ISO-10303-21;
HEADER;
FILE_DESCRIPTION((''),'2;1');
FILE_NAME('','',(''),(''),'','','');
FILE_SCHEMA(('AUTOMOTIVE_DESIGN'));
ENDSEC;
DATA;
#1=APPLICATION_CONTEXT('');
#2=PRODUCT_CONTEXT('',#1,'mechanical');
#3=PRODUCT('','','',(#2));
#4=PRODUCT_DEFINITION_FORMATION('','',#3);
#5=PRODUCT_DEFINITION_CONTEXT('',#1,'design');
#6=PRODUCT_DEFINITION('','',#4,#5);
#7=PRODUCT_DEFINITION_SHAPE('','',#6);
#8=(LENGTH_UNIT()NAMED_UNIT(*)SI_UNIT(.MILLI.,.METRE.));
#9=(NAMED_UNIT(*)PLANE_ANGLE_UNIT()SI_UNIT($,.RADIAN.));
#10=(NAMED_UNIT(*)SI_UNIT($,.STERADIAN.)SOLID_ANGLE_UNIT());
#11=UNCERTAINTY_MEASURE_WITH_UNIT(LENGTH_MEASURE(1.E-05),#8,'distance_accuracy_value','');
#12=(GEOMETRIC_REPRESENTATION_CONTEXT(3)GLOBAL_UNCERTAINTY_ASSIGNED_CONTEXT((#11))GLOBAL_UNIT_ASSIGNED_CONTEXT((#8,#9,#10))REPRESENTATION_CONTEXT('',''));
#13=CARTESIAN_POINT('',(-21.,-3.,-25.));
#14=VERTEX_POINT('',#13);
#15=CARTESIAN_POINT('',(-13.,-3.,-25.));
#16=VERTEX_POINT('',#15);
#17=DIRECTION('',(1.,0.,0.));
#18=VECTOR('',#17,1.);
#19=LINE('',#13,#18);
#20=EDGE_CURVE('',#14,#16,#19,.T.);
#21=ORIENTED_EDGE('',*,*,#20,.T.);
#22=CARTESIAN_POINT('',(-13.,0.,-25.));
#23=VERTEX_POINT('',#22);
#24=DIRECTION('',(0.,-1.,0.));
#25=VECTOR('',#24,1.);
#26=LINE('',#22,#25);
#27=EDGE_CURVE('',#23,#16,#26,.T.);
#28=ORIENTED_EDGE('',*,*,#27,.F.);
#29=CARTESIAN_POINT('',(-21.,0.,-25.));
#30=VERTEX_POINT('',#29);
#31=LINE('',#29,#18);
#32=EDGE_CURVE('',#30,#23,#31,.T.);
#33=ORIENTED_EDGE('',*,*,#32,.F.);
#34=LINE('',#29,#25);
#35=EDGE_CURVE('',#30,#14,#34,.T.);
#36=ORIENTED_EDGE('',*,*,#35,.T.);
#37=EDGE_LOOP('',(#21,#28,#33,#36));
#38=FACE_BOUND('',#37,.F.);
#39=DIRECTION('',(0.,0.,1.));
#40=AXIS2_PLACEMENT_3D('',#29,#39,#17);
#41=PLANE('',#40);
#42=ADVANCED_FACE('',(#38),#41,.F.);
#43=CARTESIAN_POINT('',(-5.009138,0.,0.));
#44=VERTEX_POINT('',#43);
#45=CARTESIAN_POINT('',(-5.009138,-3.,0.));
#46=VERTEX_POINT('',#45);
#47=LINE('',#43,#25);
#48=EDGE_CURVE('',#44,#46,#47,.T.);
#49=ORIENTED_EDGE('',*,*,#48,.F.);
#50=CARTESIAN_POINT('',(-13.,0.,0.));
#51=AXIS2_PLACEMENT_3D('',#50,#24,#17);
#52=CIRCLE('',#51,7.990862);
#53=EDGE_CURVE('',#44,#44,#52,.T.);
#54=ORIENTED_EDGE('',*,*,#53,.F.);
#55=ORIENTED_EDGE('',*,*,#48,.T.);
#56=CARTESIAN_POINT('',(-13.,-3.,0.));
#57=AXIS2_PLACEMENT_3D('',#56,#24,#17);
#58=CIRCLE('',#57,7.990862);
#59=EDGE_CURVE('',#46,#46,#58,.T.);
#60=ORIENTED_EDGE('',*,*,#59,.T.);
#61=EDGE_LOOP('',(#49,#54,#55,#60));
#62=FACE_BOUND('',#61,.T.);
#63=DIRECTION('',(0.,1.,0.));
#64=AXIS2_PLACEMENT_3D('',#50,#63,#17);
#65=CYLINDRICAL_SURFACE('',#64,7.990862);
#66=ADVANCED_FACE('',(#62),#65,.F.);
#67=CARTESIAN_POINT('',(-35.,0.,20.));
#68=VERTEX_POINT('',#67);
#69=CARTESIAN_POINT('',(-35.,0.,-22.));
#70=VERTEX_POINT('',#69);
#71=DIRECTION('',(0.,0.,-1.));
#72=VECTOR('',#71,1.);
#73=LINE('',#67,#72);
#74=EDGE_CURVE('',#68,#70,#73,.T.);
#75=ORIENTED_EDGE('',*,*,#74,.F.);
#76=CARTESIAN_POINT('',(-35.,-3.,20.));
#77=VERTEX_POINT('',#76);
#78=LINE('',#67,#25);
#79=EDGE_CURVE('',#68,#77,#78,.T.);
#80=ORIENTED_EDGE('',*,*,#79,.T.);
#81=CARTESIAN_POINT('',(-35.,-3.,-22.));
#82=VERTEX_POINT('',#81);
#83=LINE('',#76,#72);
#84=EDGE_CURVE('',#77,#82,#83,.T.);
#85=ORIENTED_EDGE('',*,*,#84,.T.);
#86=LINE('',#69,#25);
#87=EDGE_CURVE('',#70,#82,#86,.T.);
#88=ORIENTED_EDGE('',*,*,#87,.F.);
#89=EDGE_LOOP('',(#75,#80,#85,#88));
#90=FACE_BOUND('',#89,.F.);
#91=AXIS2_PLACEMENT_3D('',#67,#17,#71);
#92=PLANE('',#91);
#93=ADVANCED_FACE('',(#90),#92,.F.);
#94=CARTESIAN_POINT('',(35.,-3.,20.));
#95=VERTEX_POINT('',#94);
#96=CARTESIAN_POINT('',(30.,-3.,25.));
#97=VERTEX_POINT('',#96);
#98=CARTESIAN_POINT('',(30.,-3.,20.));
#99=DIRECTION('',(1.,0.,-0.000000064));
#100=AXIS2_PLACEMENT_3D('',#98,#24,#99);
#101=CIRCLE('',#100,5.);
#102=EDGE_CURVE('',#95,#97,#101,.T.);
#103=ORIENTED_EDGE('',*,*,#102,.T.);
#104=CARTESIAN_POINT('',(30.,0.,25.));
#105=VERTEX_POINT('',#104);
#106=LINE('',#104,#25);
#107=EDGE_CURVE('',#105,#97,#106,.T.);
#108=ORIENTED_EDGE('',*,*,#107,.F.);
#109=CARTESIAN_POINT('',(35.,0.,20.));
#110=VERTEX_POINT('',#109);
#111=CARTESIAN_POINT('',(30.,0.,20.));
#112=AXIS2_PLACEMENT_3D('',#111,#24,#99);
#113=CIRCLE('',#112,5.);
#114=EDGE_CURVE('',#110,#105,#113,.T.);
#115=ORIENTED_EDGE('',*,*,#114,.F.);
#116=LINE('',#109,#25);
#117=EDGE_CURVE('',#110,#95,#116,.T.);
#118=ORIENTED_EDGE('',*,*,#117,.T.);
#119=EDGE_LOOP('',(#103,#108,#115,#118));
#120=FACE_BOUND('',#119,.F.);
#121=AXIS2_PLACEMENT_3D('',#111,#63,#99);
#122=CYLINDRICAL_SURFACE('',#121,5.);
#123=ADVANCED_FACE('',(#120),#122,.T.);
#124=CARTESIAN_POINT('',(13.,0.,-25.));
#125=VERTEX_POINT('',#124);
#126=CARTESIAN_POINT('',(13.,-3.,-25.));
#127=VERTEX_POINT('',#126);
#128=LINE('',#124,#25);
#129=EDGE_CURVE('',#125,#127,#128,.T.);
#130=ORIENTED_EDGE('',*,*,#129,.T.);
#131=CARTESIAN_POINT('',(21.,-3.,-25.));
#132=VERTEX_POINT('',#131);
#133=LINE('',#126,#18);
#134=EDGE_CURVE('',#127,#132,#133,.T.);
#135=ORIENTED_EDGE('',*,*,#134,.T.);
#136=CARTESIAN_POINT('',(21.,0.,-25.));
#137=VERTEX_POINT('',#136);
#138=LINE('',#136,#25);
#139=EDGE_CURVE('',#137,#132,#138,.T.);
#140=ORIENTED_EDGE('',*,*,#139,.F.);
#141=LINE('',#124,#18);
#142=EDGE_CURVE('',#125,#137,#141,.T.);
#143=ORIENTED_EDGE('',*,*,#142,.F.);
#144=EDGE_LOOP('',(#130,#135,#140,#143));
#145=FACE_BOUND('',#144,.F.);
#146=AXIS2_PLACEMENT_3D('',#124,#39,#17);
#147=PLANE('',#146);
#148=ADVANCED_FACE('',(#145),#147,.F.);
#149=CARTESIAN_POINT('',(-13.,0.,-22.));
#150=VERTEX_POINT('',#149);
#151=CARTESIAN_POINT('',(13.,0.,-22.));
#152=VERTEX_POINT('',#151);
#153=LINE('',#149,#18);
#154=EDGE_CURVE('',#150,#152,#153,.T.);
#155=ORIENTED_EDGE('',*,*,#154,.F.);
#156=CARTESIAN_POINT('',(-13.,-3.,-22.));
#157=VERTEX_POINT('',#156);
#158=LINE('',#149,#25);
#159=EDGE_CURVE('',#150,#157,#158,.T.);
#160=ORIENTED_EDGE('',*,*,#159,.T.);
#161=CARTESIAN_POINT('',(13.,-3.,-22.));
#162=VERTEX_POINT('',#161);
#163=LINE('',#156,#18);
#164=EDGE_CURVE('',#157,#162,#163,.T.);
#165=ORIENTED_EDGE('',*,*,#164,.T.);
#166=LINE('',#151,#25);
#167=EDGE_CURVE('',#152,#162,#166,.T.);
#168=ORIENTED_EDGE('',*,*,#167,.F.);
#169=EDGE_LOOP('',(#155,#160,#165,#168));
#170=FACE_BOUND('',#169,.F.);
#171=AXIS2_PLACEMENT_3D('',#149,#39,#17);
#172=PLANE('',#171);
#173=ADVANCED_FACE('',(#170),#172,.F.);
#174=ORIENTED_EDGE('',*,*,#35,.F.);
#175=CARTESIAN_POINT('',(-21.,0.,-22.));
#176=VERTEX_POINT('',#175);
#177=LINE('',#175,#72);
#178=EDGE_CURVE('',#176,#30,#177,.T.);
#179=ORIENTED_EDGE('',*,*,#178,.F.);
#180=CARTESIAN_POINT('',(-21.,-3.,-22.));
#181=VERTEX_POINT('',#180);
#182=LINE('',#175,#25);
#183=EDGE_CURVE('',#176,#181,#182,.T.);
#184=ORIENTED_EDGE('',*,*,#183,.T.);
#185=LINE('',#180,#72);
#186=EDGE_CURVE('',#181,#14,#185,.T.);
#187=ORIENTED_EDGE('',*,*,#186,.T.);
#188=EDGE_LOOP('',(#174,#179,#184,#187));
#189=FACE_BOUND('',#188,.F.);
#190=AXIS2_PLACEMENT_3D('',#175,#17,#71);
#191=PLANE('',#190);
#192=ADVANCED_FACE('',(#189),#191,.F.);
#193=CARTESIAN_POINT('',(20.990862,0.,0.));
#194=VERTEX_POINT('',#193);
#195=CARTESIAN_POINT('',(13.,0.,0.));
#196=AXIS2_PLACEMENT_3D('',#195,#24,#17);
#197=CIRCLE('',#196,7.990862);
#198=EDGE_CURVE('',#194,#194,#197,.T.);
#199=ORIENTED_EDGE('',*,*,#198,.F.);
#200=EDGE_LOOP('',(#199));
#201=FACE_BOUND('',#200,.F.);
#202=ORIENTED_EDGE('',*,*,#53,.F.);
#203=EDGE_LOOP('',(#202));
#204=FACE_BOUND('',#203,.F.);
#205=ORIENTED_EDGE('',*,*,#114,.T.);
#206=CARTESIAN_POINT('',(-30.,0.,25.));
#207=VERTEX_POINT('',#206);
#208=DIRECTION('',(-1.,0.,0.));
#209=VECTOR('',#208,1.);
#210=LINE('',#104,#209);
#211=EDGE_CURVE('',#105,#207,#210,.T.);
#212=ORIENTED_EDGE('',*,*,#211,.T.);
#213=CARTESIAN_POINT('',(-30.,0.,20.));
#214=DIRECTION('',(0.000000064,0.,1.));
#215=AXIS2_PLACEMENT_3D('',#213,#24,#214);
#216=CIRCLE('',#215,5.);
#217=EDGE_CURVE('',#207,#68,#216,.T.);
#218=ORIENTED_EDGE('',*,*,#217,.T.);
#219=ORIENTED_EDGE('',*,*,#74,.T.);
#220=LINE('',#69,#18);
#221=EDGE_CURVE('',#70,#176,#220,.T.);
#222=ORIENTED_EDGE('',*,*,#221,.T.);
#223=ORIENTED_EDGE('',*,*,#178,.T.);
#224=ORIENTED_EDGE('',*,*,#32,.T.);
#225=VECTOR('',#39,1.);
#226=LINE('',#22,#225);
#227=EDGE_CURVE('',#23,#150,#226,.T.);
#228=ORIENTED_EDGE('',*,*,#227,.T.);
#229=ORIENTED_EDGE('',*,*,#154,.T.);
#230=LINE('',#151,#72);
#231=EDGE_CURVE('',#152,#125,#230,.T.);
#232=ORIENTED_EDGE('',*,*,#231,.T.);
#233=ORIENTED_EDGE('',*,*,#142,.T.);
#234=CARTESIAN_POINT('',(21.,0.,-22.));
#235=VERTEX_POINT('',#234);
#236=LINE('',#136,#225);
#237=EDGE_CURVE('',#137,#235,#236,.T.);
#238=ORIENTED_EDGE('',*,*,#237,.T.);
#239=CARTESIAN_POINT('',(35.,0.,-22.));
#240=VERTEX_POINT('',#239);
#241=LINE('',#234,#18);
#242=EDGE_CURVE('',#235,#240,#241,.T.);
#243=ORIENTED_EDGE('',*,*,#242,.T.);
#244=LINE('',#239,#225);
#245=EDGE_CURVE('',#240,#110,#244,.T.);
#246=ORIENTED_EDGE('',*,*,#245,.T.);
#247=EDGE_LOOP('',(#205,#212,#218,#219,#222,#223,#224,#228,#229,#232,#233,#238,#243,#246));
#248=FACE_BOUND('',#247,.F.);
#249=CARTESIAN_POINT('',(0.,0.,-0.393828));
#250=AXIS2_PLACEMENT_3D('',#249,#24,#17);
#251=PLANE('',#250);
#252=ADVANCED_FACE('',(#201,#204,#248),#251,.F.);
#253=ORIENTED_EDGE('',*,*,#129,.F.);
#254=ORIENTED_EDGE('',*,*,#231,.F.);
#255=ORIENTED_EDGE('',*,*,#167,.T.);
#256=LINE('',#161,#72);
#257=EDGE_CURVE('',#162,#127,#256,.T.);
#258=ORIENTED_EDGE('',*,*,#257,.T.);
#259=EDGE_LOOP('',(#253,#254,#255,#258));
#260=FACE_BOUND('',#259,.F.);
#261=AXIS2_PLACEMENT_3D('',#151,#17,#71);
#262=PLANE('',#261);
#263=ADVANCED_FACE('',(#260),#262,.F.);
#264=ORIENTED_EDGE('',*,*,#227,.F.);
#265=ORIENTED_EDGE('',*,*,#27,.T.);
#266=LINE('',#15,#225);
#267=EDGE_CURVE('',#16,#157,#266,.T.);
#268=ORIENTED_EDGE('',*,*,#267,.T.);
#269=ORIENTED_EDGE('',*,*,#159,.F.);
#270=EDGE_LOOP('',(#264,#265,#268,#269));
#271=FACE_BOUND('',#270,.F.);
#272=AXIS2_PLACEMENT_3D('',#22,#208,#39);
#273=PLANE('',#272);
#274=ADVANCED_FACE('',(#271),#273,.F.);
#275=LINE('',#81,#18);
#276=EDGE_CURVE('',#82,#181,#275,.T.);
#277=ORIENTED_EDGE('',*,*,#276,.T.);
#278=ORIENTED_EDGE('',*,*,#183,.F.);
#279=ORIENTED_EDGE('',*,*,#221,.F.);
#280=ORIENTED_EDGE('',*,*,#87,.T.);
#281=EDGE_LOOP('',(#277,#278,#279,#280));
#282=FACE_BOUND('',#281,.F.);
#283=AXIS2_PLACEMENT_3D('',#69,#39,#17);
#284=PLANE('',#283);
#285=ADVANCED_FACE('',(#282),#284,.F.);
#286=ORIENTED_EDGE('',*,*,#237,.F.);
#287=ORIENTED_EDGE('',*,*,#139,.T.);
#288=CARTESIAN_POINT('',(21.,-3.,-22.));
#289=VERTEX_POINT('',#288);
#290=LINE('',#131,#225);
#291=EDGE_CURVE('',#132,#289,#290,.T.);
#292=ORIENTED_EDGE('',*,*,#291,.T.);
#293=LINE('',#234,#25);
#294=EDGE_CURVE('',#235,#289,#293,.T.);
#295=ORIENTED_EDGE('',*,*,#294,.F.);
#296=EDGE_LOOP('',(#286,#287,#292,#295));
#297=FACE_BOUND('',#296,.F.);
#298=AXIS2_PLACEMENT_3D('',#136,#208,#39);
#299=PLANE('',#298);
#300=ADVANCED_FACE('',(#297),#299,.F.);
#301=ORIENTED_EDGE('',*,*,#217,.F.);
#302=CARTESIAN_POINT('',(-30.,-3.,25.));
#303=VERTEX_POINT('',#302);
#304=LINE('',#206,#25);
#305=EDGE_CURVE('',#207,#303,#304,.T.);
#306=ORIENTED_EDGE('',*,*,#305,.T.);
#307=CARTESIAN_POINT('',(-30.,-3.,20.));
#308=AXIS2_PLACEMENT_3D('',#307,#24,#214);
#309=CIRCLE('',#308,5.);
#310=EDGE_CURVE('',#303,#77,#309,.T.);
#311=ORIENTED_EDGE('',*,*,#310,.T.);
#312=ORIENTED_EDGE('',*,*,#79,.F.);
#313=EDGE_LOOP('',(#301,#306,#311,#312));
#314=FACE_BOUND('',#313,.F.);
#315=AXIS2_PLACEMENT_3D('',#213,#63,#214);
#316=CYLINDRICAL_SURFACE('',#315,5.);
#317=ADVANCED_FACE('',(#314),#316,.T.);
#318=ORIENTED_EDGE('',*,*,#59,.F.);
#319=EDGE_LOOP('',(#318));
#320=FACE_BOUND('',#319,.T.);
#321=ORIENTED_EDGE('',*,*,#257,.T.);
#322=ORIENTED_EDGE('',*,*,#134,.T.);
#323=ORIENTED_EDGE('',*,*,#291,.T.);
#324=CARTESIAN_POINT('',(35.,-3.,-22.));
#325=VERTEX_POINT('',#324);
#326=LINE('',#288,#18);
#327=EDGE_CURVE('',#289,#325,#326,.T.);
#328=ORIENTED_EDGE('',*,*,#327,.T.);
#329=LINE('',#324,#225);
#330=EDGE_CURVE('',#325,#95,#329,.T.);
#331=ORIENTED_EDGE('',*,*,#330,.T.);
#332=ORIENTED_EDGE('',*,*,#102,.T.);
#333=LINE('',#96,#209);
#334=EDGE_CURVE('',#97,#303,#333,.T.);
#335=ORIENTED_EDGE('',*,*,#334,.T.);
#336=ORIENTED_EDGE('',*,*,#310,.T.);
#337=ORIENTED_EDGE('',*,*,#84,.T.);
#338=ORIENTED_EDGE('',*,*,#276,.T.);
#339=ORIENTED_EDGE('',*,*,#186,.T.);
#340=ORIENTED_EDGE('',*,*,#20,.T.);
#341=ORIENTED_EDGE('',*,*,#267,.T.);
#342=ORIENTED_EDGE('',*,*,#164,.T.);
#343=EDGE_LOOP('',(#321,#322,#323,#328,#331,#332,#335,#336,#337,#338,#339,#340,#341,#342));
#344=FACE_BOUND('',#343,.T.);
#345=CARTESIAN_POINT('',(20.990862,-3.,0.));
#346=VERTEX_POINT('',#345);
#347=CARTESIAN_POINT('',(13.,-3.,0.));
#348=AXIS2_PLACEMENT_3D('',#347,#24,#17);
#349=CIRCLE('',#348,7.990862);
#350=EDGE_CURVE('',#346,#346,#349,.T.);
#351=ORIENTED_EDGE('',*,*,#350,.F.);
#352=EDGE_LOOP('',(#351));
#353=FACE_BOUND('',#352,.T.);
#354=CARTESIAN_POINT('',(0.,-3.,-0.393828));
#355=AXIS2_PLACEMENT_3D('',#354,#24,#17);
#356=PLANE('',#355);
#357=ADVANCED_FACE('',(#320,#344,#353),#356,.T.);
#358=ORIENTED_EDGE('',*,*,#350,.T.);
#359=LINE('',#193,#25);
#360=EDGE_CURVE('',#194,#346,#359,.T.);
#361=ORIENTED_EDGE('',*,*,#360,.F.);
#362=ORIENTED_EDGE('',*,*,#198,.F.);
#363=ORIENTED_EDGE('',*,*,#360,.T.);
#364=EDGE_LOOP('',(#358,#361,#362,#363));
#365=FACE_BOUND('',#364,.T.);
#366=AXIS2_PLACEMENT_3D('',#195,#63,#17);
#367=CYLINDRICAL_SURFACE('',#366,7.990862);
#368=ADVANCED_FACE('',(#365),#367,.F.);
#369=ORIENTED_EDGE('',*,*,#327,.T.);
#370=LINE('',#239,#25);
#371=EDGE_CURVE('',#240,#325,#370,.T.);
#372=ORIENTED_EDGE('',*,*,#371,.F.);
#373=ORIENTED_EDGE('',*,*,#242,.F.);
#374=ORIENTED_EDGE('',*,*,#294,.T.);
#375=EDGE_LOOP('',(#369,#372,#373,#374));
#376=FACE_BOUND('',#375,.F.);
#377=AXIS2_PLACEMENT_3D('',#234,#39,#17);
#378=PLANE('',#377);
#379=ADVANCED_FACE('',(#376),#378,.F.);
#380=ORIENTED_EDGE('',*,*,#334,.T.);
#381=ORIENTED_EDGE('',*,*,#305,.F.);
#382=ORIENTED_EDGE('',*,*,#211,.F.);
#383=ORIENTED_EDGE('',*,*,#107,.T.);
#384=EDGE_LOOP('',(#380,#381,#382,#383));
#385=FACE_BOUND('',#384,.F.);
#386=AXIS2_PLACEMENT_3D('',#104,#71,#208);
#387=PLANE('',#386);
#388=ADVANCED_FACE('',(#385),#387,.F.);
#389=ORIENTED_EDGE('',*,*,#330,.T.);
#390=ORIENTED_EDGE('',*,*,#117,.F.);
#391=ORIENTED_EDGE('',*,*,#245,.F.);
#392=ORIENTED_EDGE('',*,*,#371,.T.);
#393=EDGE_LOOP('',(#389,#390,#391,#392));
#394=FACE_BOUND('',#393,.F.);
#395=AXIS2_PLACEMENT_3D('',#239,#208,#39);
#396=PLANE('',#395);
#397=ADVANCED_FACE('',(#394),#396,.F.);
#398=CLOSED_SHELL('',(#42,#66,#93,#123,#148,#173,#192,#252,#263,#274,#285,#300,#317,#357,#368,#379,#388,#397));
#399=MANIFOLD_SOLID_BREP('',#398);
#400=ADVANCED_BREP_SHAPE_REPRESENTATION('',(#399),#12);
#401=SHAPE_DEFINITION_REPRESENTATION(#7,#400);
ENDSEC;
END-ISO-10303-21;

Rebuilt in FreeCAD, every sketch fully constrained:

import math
import FreeCAD as App
import Part
import Sketcher

doc = App.newDocument("Part")
params = doc.addObject("Spreadsheet::Sheet", "Params")
for row, (alias, value) in enumerate([
    ("sketch1_radius", "5 mm"),
    ("sketch1_width", "60 mm"),
    ("sketch1_width2", "14 mm"),
    ("sketch1_width3", "8 mm"),
    ("sketch1_height", "42 mm"),
    ("pad1_length", "3 mm"),
], start=1):
    params.set(f"A{row}", alias)
    params.set(f"B{row}", "=" + value)
    params.setAlias(f"B{row}", alias)

body = doc.addObject("PartDesign::Body", "Body")

# Sketch on XZ plane
sketch1 = body.newObject("Sketcher::SketchObject", "Sketch")
sketch1.AttachmentSupport = (doc.getObject("XZ_Plane"), [""])
sketch1.MapMode = "FlatFace"
sketch1.addGeometry([
    Part.LineSegment(App.Vector(30, 25, 0), App.Vector(-30, 25, 0)),  # 0
    Part.ArcOfCircle(Part.Circle(App.Vector(-30, 20, 0), App.Vector(0, 0, 1), 5), math.radians(89.999996), math.radians(180.000004)),  # 1
    Part.LineSegment(App.Vector(-35, 20, 0), App.Vector(-35, -22, 0)),  # 2
    Part.LineSegment(App.Vector(-35, -22, 0), App.Vector(-21, -22, 0)),  # 3
    Part.LineSegment(App.Vector(-21, -22, 0), App.Vector(-21, -25, 0)),  # 4
    Part.LineSegment(App.Vector(-21, -25, 0), App.Vector(-13, -25, 0)),  # 5
    Part.LineSegment(App.Vector(-13, -25, 0), App.Vector(-13, -22, 0)),  # 6
    Part.LineSegment(App.Vector(-13, -22, 0), App.Vector(13, -22, 0)),  # 7
    Part.LineSegment(App.Vector(13, -22, 0), App.Vector(13, -25, 0)),  # 8
    Part.LineSegment(App.Vector(13, -25, 0), App.Vector(21, -25, 0)),  # 9
    Part.LineSegment(App.Vector(21, -25, 0), App.Vector(21, -22, 0)),  # 10
    Part.LineSegment(App.Vector(21, -22, 0), App.Vector(35, -22, 0)),  # 11
    Part.LineSegment(App.Vector(35, -22, 0), App.Vector(35, 20, 0)),  # 12
    Part.ArcOfCircle(Part.Circle(App.Vector(30, 20, 0), App.Vector(0, 0, 1), 5), math.radians(-0.000004), math.radians(90.000004)),  # 13
    Part.Circle(App.Vector(-13, 0, 0), App.Vector(0, 0, 1), 7.990862),  # 14
    Part.Circle(App.Vector(13, 0, 0), App.Vector(0, 0, 1), 7.990862),  # 15
], False)
sketch1.addConstraint([
    Sketcher.Constraint("Tangent", 0, 2, 1, 1),
    Sketcher.Constraint("Tangent", 1, 2, 2, 1),
    Sketcher.Constraint("Coincident", 2, 2, 3, 1),
    Sketcher.Constraint("Coincident", 3, 2, 4, 1),
    Sketcher.Constraint("Coincident", 4, 2, 5, 1),
    Sketcher.Constraint("Coincident", 5, 2, 6, 1),
    Sketcher.Constraint("Coincident", 6, 2, 7, 1),
    Sketcher.Constraint("Coincident", 7, 2, 8, 1),
    Sketcher.Constraint("Coincident", 8, 2, 9, 1),
    Sketcher.Constraint("Coincident", 9, 2, 10, 1),
    Sketcher.Constraint("Coincident", 10, 2, 11, 1),
    Sketcher.Constraint("Coincident", 11, 2, 12, 1),
    Sketcher.Constraint("Tangent", 12, 2, 13, 1),
    Sketcher.Constraint("Tangent", 13, 2, 0, 1),
    Sketcher.Constraint("Horizontal", 0),
    Sketcher.Constraint("Vertical", 2),
    Sketcher.Constraint("Horizontal", 3),
    Sketcher.Constraint("Vertical", 4),
    Sketcher.Constraint("Horizontal", 5),
    Sketcher.Constraint("Vertical", 6),
    Sketcher.Constraint("Horizontal", 7),
    Sketcher.Constraint("Vertical", 8),
    Sketcher.Constraint("Horizontal", 9),
    Sketcher.Constraint("Vertical", 10),
    Sketcher.Constraint("Horizontal", 11),
    Sketcher.Constraint("Vertical", 12),
    Sketcher.Constraint("Equal", 1, 13),
    Sketcher.Constraint("Equal", 14, 15),
    Sketcher.Constraint("Symmetric", 14, 3, 15, 3, -1, 1),
    Sketcher.Constraint("Symmetric", 5, 2, 8, 2, -2),
    Sketcher.Constraint("Symmetric", 3, 2, 10, 2, -2),
    Sketcher.Constraint("PointOnObject", 14, 3, -1),
    Sketcher.Constraint("Horizontal", 3, 2, 6, 2),
    Sketcher.Constraint("Vertical", 14, 3, 5, 2),
    Sketcher.Constraint("Equal", 3, 11),
    Sketcher.Constraint("Radius", 1, 5.0),
    Sketcher.Constraint("DistanceX", 0, 2, 0, 1, 60.0),
    Sketcher.Constraint("DistanceX", 3, 1, 3, 2, 14.0),
    Sketcher.Constraint("DistanceX", 5, 1, 5, 2, 8.0),
    Sketcher.Constraint("DistanceY", 2, 2, 2, 1, 42.0),
    Sketcher.Constraint("DistanceY", 4, 2, 4, 1, 3.0),
    Sketcher.Constraint("DistanceY", -1, 1, 1, 3, 20.0),
    Sketcher.Constraint("Diameter", 14, 15.981724),
])
sketch1.setExpression("Constraints[35]", "Params.sketch1_radius")
sketch1.setExpression("Constraints[36]", "Params.sketch1_width")
sketch1.setExpression("Constraints[37]", "Params.sketch1_width2")
sketch1.setExpression("Constraints[38]", "Params.sketch1_width3")
sketch1.setExpression("Constraints[39]", "Params.sketch1_height")
pad1 = body.newObject("PartDesign::Pad", "Pad")
pad1.Profile = sketch1
pad1.setExpression("Length", "Params.pad1_length")

doc.recompute()
